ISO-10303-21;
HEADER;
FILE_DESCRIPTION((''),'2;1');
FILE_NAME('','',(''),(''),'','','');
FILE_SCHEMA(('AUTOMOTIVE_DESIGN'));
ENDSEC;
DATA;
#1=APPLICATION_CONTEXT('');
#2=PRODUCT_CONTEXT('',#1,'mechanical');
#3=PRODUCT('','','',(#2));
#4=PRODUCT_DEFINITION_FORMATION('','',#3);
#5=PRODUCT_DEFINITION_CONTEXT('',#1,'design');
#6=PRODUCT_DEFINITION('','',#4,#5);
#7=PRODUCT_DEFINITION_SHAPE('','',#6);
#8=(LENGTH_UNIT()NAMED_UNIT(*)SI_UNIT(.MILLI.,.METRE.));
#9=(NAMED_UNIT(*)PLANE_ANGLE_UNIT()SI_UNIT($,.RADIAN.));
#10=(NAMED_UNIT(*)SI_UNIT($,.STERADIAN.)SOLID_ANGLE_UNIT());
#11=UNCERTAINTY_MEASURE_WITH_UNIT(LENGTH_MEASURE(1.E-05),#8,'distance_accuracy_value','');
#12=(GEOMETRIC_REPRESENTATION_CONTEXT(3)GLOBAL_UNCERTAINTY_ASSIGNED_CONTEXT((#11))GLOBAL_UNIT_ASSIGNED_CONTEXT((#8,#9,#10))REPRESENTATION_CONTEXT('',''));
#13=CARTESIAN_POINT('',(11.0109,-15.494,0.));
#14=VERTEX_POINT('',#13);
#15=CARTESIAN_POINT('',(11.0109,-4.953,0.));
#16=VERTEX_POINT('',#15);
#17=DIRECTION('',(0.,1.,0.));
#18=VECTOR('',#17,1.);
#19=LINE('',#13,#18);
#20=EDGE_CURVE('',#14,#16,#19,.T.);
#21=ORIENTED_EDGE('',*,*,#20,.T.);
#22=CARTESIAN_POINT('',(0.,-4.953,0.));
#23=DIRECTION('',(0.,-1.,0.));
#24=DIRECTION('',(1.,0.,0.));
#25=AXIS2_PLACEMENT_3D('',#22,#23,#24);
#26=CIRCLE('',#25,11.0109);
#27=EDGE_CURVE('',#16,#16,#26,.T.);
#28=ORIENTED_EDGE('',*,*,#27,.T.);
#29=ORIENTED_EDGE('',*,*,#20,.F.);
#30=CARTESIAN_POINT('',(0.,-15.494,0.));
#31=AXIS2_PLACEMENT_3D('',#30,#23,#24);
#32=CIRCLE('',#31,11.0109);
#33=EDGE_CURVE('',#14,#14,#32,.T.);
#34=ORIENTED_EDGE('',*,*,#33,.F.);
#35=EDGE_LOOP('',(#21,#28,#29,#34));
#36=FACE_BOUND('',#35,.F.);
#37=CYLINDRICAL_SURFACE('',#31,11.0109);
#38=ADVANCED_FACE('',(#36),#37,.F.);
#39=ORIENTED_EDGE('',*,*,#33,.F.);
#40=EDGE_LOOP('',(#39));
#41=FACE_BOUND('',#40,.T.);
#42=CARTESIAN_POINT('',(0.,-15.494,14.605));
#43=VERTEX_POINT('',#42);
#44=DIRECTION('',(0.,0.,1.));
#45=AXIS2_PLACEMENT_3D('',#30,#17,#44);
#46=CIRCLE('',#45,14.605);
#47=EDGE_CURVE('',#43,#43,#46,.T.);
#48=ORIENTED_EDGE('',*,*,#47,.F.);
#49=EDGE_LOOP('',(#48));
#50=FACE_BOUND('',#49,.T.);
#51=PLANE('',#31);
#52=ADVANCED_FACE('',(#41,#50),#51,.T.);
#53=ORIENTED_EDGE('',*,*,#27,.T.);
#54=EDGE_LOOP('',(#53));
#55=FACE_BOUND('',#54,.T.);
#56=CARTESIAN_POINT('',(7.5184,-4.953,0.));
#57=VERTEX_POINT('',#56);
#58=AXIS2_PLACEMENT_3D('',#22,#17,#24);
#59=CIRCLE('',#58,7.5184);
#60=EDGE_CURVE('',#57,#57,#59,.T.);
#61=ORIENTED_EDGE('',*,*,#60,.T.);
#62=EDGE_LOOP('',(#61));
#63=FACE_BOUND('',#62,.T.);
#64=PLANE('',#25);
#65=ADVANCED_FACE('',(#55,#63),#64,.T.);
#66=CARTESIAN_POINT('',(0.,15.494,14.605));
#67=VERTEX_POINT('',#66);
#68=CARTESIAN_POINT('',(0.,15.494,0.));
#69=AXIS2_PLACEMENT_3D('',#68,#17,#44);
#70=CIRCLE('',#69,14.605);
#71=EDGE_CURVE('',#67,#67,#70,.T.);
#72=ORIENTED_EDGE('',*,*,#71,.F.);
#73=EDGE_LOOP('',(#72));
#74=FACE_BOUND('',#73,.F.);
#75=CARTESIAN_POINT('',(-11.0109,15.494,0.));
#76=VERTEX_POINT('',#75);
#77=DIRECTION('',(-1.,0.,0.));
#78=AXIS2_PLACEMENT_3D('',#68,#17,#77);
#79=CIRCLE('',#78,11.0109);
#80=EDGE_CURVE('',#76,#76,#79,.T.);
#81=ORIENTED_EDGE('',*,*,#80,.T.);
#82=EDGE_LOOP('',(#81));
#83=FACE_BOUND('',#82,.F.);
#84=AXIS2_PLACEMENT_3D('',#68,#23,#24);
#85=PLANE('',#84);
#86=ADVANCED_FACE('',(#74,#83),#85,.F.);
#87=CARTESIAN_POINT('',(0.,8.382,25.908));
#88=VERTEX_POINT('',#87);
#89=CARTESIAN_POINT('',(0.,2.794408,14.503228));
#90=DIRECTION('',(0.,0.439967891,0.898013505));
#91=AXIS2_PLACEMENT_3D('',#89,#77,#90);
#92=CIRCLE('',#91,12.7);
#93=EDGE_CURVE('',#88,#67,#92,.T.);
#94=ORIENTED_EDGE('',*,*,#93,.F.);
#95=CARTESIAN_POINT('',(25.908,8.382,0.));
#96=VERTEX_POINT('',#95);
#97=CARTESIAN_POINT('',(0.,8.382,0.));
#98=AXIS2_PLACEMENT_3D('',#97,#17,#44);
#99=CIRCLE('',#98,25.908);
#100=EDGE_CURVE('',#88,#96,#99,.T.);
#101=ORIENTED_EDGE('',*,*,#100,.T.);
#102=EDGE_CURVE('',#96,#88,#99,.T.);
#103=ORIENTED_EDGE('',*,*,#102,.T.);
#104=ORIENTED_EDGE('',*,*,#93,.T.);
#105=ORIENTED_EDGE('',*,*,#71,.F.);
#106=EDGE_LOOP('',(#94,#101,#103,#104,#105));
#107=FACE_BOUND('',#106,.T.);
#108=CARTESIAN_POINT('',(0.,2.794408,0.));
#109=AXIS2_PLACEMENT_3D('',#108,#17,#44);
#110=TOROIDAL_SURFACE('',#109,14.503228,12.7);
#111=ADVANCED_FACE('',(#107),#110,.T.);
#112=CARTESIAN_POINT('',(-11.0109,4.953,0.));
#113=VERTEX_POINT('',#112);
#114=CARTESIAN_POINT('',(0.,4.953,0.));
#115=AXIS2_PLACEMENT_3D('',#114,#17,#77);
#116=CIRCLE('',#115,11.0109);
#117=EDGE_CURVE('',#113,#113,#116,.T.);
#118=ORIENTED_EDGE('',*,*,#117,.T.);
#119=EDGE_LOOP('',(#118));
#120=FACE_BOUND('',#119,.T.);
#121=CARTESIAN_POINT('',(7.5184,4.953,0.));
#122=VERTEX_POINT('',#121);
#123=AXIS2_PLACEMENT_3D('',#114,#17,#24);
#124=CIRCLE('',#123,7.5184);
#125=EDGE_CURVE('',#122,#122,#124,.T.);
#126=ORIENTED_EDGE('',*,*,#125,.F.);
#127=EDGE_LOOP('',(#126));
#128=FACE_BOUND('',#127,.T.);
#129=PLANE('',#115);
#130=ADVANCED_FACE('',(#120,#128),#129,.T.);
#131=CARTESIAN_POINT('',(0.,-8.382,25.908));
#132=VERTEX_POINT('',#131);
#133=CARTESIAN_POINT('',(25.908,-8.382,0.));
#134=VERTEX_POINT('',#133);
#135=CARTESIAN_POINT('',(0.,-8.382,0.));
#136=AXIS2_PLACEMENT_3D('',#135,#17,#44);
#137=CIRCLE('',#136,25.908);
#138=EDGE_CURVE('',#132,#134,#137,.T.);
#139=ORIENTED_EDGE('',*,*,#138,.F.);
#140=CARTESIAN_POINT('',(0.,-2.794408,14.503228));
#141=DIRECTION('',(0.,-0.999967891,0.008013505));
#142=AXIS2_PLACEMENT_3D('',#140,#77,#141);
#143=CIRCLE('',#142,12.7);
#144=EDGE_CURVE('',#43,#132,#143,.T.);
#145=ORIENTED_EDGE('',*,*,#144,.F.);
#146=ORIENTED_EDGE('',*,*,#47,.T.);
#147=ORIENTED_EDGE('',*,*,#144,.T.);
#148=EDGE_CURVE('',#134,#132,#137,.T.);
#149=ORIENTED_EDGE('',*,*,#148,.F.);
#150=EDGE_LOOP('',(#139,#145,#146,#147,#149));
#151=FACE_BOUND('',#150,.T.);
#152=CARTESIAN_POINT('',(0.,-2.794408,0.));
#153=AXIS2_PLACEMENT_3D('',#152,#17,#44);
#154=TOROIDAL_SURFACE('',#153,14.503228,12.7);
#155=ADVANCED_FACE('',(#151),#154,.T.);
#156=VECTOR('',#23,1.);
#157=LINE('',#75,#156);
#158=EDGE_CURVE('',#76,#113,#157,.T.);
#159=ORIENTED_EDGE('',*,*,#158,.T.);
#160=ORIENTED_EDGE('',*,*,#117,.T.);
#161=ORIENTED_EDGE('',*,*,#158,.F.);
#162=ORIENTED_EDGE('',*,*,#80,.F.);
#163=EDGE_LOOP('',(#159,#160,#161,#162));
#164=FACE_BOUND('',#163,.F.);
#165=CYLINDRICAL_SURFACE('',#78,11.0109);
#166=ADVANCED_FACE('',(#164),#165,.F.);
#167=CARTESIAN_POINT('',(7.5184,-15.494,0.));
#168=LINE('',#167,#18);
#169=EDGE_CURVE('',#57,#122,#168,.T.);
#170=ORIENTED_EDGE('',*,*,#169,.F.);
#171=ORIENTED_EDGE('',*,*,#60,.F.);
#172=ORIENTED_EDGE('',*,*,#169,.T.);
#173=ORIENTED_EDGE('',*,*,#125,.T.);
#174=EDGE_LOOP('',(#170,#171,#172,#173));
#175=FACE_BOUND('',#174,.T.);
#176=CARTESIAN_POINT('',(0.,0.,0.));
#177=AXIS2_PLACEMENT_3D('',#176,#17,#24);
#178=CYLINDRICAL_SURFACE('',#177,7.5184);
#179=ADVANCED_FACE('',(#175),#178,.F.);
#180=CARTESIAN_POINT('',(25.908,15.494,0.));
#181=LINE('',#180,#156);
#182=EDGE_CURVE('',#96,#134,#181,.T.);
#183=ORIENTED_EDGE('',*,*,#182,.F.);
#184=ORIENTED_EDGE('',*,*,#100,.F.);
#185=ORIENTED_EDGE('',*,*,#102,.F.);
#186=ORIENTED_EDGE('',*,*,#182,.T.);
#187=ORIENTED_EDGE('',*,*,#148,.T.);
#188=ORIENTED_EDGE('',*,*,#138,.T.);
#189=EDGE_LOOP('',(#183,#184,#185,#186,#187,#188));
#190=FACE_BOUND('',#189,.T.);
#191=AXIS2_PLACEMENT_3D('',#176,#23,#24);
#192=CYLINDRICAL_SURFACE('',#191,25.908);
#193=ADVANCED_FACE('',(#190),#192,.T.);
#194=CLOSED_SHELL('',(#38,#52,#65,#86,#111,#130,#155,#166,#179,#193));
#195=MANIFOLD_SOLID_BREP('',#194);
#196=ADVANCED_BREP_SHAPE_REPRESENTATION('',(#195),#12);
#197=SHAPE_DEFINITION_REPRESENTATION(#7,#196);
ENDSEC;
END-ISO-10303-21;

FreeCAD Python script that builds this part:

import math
import FreeCAD as App
import Part
import Sketcher
from FreeCAD import Vector
Q = App.Units.Quantity

doc = App.newDocument("Part")
body = doc.addObject("PartDesign::Body", "Body")

# Sketch on XZ plane
sketch1 = doc.addObject("Sketcher::SketchObject", "Sketch")
body.addObject(sketch1)
sketch1.AttachmentSupport = (doc.XZ_Plane, [""])
sketch1.MapMode = "FlatFace"
sketch1.addGeometry([
    Part.Circle(Vector(0, 0, 0), Vector(0, 0, 1), 26),
    Part.Circle(Vector(0, 0, 0), Vector(0, 0, 1), 8),
], False)
sketch1.addConstraint([
    Sketcher.Constraint("Coincident", 0, 3, -1, 1),
    Sketcher.Constraint("Coincident", 1, 3, -1, 1),
    Sketcher.Constraint("Diameter", 0, Q("2.04 in")),
    Sketcher.Constraint("Diameter", 1, Q("0.592 in")),
])
pad1 = doc.addObject("PartDesign::Pad", "Pad")
body.addObject(pad1)
pad1.Profile = sketch1
pad1.Length = Q("1.22 in")
pad1.Midplane = True

# Sketch on XZ plane
sketch2 = doc.addObject("Sketcher::SketchObject", "Sketch001")
body.addObject(sketch2)
sketch2.AttachmentSupport = (doc.XZ_Plane, [""])
sketch2.MapMode = "FlatFace"
sketch2.AttachmentOffset = App.Placement(Vector(0, 0, 0.61 * 25.4), App.Rotation())
sketch2.addGeometry(Part.Circle(Vector(0, 0, 0), Vector(0, 0, 1), 11), False)
sketch2.addConstraint([
    Sketcher.Constraint("Coincident", 0, 3, -1, 1),
    Sketcher.Constraint("Diameter", 0, Q("0.867 in")),
])
pocket1 = doc.addObject("PartDesign::Pocket", "Pocket")
body.addObject(pocket1)
pocket1.Profile = sketch2
pocket1.Length = Q("0.415 in")

# Sketch on XZ plane
sketch3 = doc.addObject("Sketcher::SketchObject", "Sketch002")
body.addObject(sketch3)
sketch3.AttachmentSupport = (doc.XZ_Plane, [""])
sketch3.MapMode = "FlatFace"
sketch3.AttachmentOffset = App.Placement(Vector(0, 0, -0.61 * 25.4), App.Rotation())
sketch3.addGeometry(Part.Circle(Vector(0, 0, 0), Vector(0, 0, 1), 11), False)
sketch3.addConstraint([
    Sketcher.Constraint("Coincident", 0, 3, -1, 1),
    Sketcher.Constraint("Diameter", 0, Q("0.867 in")),
])
pocket2 = doc.addObject("PartDesign::Pocket", "Pocket001")
body.addObject(pocket2)
pocket2.Profile = sketch3
pocket2.Length = Q("0.415 in")
pocket2.Reversed = True

# Sketch on YZ plane
sketch4 = doc.addObject("Sketcher::SketchObject", "Sketch003")
body.addObject(sketch4)
sketch4.AttachmentSupport = (doc.YZ_Plane, [""])
sketch4.MapMode = "FlatFace"
sketch4.addGeometry([
    Part.LineSegment(Vector(-15.49, 14.4, 0), Vector(-15.49, 14.61, 0)),  # 0
    Part.ArcOfCircle(Part.Circle(Vector(-2.79, 14.5, 0), Vector(0, 0, 1), 12.7), math.radians(179.54), math.radians(180.46)),  # 1
    Part.ArcOfCircle(Part.Circle(Vector(2.79, 14.5, 0), Vector(0, 0, 1), 12.7), math.radians(-0.46), math.radians(0.46)),  # 2
    Part.LineSegment(Vector(15.49, 14.61, 0), Vector(15.49, 14.4, 0)),  # 3
    Part.LineSegment(Vector(-8.38, 25.91, 0), Vector(8.38, 25.91, 0)),  # 4
    Part.ArcOfCircle(Part.Circle(Vector(2.79, 14.5, 0), Vector(0, 0, 1), 12.7), math.radians(0), math.radians(64)),  # 5
    Part.LineSegment(Vector(15.49, 14.61, 0), Vector(15.49, 30.48, 0)),  # 6
    Part.LineSegment(Vector(15.49, 30.48, 0), Vector(-15.49, 30.48, 0)),  # 7
    Part.LineSegment(Vector(-15.49, 30.48, 0), Vector(-15.49, 14.61, 0)),  # 8
    Part.ArcOfCircle(Part.Circle(Vector(-2.79, 14.5, 0), Vector(0, 0, 1), 12.7), math.radians(116), math.radians(180)),  # 9
], False)
sketch4.addConstraint([
    Sketcher.Constraint("Coincident", 0, 1, 1, 2),
    Sketcher.Constraint("Coincident", 1, 1, 0, 2),
    Sketcher.Constraint("Coincident", 2, 1, 3, 2),
    Sketcher.Constraint("Coincident", 3, 1, 2, 2),
    Sketcher.Constraint("Coincident", 4, 2, 5, 2),
    Sketcher.Constraint("Coincident", 5, 1, 6, 1),
    Sketcher.Constraint("Coincident", 6, 2, 7, 1),
    Sketcher.Constraint("Coincident", 7, 2, 8, 1),
    Sketcher.Constraint("Coincident", 8, 2, 9, 2),
    Sketcher.Constraint("Coincident", 9, 1, 4, 1),
    Sketcher.Constraint("Vertical", 0),
    Sketcher.Constraint("Vertical", 3),
    Sketcher.Constraint("Horizontal", 4),
    Sketcher.Constraint("Vertical", 6),
    Sketcher.Constraint("Horizontal", 7),
    Sketcher.Constraint("Vertical", 8),
    Sketcher.Constraint("Coincident", 5, 3, 2, 3),
    Sketcher.Constraint("Coincident", 9, 3, 1, 3),
    Sketcher.Constraint("Coincident", 5, 1, 3, 1),
    Sketcher.Constraint("Coincident", 8, 2, 1, 1),
    Sketcher.Constraint("Equal", 1, 2),
    Sketcher.Constraint("Symmetric", 1, 3, 2, 3, -2),
    Sketcher.Constraint("Horizontal", 0, 1, 2, 1),
    Sketcher.Constraint("Radius", 1, Q("0.5 in")),
    Sketcher.Constraint("DistanceX", 4, 1, 4, 2, Q("0.66 in")),
    Sketcher.Constraint("DistanceX", 7, 2, 7, 1, Q("1.22 in")),
    Sketcher.Constraint("DistanceY", -1, 1, 6, 2, Q("1.2 in")),
    Sketcher.Constraint("DistanceY", 6, 1, 6, 2, Q("0.625 in")),
    Sketcher.Constraint("DistanceY", -1, 1, 4, 2, Q("1.02 in")),
])
groove = doc.addObject("PartDesign::Groove", "Groove")
body.addObject(groove)
groove.Profile = sketch4
groove.ReferenceAxis = (sketch4, ["H_Axis"])
groove.Angle = 360

doc.recompute()
